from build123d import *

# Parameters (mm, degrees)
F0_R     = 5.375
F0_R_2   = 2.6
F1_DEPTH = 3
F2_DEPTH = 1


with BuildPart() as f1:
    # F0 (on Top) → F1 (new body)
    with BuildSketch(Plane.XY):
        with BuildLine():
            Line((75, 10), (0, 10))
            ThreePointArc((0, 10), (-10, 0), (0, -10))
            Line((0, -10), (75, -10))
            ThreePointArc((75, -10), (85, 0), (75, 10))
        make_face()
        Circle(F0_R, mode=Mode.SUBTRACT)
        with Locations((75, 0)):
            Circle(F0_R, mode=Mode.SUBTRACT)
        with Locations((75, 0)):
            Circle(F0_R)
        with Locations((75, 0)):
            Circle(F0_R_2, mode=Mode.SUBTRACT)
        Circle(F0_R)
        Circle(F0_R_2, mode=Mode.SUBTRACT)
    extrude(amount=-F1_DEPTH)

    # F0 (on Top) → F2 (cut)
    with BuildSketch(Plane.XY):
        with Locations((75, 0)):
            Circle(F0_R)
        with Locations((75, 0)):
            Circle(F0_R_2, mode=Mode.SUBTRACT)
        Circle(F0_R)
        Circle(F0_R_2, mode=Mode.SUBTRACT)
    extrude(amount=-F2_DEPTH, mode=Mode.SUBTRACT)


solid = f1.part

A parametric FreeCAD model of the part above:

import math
import FreeCAD as App
import Part
import Sketcher
from FreeCAD import Vector

doc = App.newDocument("Part")
body = doc.addObject("PartDesign::Body", "Body")

sketch1 = body.newObject("Sketcher::SketchObject", "Sketch")
sketch1.AttachmentSupport = (doc.getObject("XY_Plane"), [""])
sketch1.MapMode = "FlatFace"
sketch1.addGeometry(Part.LineSegment(Vector(75, 10, 0), Vector(0, 10, 0)), False)
sketch1.addGeometry(Part.ArcOfCircle(Part.Circle(Vector(0, 0, 0), Vector(0, 0, 1), 10), math.radians(90), math.radians(270)), False)
sketch1.addGeometry(Part.LineSegment(Vector(0, -10, 0), Vector(75, -10, 0)), False)
sketch1.addGeometry(Part.ArcOfCircle(Part.Circle(Vector(75, 0, 0), Vector(0, 0, 1), 10), math.radians(-90), math.radians(90)), False)
sketch1.addGeometry(Part.Circle(Vector(0, 0, 0), Vector(0, 0, 1), 2.6), False)
sketch1.addGeometry(Part.Circle(Vector(75, 0, 0), Vector(0, 0, 1), 2.6), False)
sketch1.addConstraint(Sketcher.Constraint("Tangent", 0, 2, 1, 1))
sketch1.addConstraint(Sketcher.Constraint("Tangent", 1, 2, 2, 1))
sketch1.addConstraint(Sketcher.Constraint("Tangent", 2, 2, 3, 1))
sketch1.addConstraint(Sketcher.Constraint("Tangent", 3, 2, 0, 1))
sketch1.addConstraint(Sketcher.Constraint("Horizontal", 0))
sketch1.addConstraint(Sketcher.Constraint("Horizontal", 2))
sketch1.addConstraint(Sketcher.Constraint("Coincident", 1, 3, -1, 1))
sketch1.addConstraint(Sketcher.Constraint("Coincident", 4, 3, -1, 1))
sketch1.addConstraint(Sketcher.Constraint("Coincident", 5, 3, 3, 3))
sketch1.addConstraint(Sketcher.Constraint("Equal", 4, 5))
sketch1.addConstraint(Sketcher.Constraint("Radius", 1, 10.0))
sketch1.addConstraint(Sketcher.Constraint("Diameter", 4, 5.2))
sketch1.addConstraint(Sketcher.Constraint("DistanceX", 0, 2, 0, 1, 75.0))
pad1 = body.newObject("PartDesign::Pad", "Pad")
pad1.Profile = sketch1
pad1.Length = 3
pad1.Reversed = True

sketch2 = body.newObject("Sketcher::SketchObject", "Sketch001")
sketch2.AttachmentSupport = (doc.getObject("XY_Plane"), [""])
sketch2.MapMode = "FlatFace"
sketch2.addGeometry(Part.Circle(Vector(75, 0, 0), Vector(0, 0, 1), 5.4), False)
sketch2.addGeometry(Part.Circle(Vector(75, 0, 0), Vector(0, 0, 1), 2.6), False)
sketch2.addGeometry(Part.Circle(Vector(0, 0, 0), Vector(0, 0, 1), 5.4), False)
sketch2.addGeometry(Part.Circle(Vector(0, 0, 0), Vector(0, 0, 1), 2.6), False)
sketch2.addConstraint(Sketcher.Constraint("Coincident", 2, 3, -1, 1))
sketch2.addConstraint(Sketcher.Constraint("Coincident", 3, 3, -1, 1))
sketch2.addConstraint(Sketcher.Constraint("Coincident", 1, 3, 0, 3))
sketch2.addConstraint(Sketcher.Constraint("Equal", 0, 2))
sketch2.addConstraint(Sketcher.Constraint("Equal", 1, 3))
sketch2.addConstraint(Sketcher.Constraint("PointOnObject", 0, 3, -1))
sketch2.addConstraint(Sketcher.Constraint("Diameter", 1, 5.2))
sketch2.addConstraint(Sketcher.Constraint("Diameter", 0, 10.75))
sketch2.addConstraint(Sketcher.Constraint("DistanceX", -1, 1, 0, 3, 75.0))
pocket1 = body.newObject("PartDesign::Pocket", "Pocket")
pocket1.Profile = sketch2
pocket1.Length = 1

doc.recompute()
